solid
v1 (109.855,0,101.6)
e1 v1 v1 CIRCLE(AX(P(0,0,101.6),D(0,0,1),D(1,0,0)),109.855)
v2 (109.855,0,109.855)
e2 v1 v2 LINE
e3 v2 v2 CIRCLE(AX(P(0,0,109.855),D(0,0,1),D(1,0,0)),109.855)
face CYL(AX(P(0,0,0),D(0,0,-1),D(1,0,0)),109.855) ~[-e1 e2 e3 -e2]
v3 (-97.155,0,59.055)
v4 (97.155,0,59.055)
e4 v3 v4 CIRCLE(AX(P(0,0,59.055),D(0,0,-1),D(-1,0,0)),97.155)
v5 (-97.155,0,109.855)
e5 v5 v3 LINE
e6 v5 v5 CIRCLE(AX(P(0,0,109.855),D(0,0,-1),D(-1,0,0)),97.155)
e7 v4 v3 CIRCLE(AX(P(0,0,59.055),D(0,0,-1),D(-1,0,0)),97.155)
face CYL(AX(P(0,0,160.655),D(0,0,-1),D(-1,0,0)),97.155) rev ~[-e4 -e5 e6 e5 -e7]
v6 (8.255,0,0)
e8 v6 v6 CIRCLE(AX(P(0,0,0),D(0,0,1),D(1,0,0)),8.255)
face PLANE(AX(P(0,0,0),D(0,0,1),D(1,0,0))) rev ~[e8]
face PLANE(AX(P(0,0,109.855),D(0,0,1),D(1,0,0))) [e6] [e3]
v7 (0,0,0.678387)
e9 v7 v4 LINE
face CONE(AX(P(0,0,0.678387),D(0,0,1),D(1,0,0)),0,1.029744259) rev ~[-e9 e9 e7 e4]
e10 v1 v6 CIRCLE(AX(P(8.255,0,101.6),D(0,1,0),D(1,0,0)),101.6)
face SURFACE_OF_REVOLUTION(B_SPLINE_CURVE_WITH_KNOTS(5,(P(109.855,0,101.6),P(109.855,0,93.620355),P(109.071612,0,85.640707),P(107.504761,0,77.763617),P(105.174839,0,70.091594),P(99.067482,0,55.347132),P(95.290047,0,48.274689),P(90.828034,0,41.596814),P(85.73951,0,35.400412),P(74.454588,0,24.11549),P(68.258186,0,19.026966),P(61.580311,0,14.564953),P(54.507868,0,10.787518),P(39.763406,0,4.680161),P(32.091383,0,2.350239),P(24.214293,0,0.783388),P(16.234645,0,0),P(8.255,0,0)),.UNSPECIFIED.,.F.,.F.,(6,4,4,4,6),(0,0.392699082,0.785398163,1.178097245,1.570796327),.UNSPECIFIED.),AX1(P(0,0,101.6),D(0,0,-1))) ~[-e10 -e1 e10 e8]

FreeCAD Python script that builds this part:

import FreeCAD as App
import Part
import Sketcher

V = App.Vector
Q = App.Units.Quantity


def edges_at(feature, points):
    """Names of the edges that pass closest to the given points."""
    edges = feature.Shape.Edges
    near = lambda p: min(range(len(edges)), key=lambda i: edges[i].distToShape(Part.Vertex(*p))[0])
    return sorted({f"Edge{near(p) + 1}" for p in points})

doc = App.newDocument("Part")
body = doc.addObject("PartDesign::Body", "Body")

# Sketch on XY plane
sketch1 = body.newObject("Sketcher::SketchObject", "Sketch")
sketch1.AttachmentSupport = (doc.getObject("XY_Plane"), [""])
sketch1.MapMode = "FlatFace"
sketch1.addGeometry(Part.Circle(V(0, 0, 0), V(0, 0, 1), 110), False)
sketch1.addConstraint(Sketcher.Constraint("Coincident", 0, 3, -1, 1))
sketch1.addConstraint(Sketcher.Constraint("Diameter", 0, Q("8.65 in")))
pad1 = body.newObject("PartDesign::Pad", "Pad")
pad1.Profile = sketch1
pad1.Length = Q("4.325 in")

# Sketch on XY plane
sketch2 = body.newObject("Sketcher::SketchObject", "Sketch001")
sketch2.AttachmentSupport = (doc.getObject("XY_Plane"), [""])
sketch2.MapMode = "FlatFace"
sketch2.AttachmentOffset = App.Placement(V(0, 0, 4.325 * 25.4), App.Rotation())
sketch2.addGeometry(Part.Circle(V(0, 0, 0), V(0, 0, 1), 97), False)
sketch2.addConstraint(Sketcher.Constraint("Coincident", 0, 3, -1, 1))
sketch2.addConstraint(Sketcher.Constraint("Diameter", 0, Q("7.65 in")))
doc.recompute()
hole = body.newObject("PartDesign::Hole", "Hole")
hole.Profile = sketch2
hole.ThreadType = "None"
hole.Diameter = Q("7.65 in")
hole.DepthType = "Dimension"
hole.Depth = Q("2 in")
hole.DrillPoint = "Angled"
hole.DrillPointAngle = 118
doc.recompute()

fillet = body.newObject("PartDesign::Fillet", "Fillet")
fillet.Base = (hole, edges_at(hole, [(-109.855, 0, 0)]))
fillet.Radius = Q("4 in")

doc.recompute()
